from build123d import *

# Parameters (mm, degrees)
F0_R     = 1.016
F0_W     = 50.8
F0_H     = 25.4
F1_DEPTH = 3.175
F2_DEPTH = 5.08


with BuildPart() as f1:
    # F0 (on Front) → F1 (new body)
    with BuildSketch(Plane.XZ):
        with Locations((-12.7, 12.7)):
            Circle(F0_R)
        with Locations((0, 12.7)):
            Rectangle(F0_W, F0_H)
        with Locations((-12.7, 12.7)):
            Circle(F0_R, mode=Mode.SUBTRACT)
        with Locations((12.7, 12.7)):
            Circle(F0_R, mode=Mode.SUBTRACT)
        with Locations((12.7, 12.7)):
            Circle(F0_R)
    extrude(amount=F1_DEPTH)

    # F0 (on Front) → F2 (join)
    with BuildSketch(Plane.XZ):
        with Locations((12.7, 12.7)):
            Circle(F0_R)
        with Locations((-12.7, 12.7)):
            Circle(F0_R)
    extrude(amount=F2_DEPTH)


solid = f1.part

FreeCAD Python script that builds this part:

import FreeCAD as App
import Part
import Sketcher
from FreeCAD import Vector
Q = App.Units.Quantity

doc = App.newDocument("Part")
body = doc.addObject("PartDesign::Body", "Body")

sketch1 = doc.addObject("Sketcher::SketchObject", "Sketch")
body.addObject(sketch1)
sketch1.AttachmentSupport = (doc.XZ_Plane, [""])
sketch1.MapMode = "FlatFace"
sketch1.addGeometry(Part.LineSegment(Vector(-25.4, 25.4, 0), Vector(-25.4, 0, 0)), False)
sketch1.addGeometry(Part.LineSegment(Vector(-25.4, 0, 0), Vector(25.4, 0, 0)), False)
sketch1.addGeometry(Part.LineSegment(Vector(25.4, 0, 0), Vector(25.4, 25.4, 0)), False)
sketch1.addGeometry(Part.LineSegment(Vector(25.4, 25.4, 0), Vector(-25.4, 25.4, 0)), False)
sketch1.addGeometry(Part.Circle(Vector(-12.7, 12.7, 0), Vector(0, 0, 1), 1), False)
sketch1.addConstraint(Sketcher.Constraint("Coincident", 0, 2, 1, 1))
sketch1.addConstraint(Sketcher.Constraint("Coincident", 1, 2, 2, 1))
sketch1.addConstraint(Sketcher.Constraint("Coincident", 2, 2, 3, 1))
sketch1.addConstraint(Sketcher.Constraint("Coincident", 3, 2, 0, 1))
sketch1.addConstraint(Sketcher.Constraint("Vertical", 0))
sketch1.addConstraint(Sketcher.Constraint("Horizontal", 1))
sketch1.addConstraint(Sketcher.Constraint("Vertical", 2))
sketch1.addConstraint(Sketcher.Constraint("Horizontal", 3))
sketch1.addConstraint(Sketcher.Constraint("Symmetric", 0, 2, 1, 2, -1, 1))
sketch1.addConstraint(Sketcher.Constraint("Diameter", 4, Q("0.08 in")))
sketch1.addConstraint(Sketcher.Constraint("DistanceX", 1, 1, 1, 2, Q("2 in")))
sketch1.addConstraint(Sketcher.Constraint("DistanceY", 0, 2, 0, 1, Q("1 in")))
sketch1.addConstraint(Sketcher.Constraint("DistanceX", 4, 3, -1, 1, Q("0.5 in")))
sketch1.addConstraint(Sketcher.Constraint("DistanceY", -1, 1, 4, 3, Q("0.5 in")))
pad1 = doc.addObject("PartDesign::Pad", "Pad")
body.addObject(pad1)
pad1.Profile = sketch1
pad1.Length = Q("0.125 in")

sketch2 = doc.addObject("Sketcher::SketchObject", "Sketch001")
body.addObject(sketch2)
sketch2.AttachmentSupport = (doc.XZ_Plane, [""])
sketch2.MapMode = "FlatFace"
sketch2.addGeometry(Part.Circle(Vector(12.7, 12.7, 0), Vector(0, 0, 1), 1), False)
sketch2.addGeometry(Part.Circle(Vector(-12.7, 12.7, 0), Vector(0, 0, 1), 1), False)
sketch2.addConstraint(Sketcher.Constraint("Equal", 0, 1))
sketch2.addConstraint(Sketcher.Constraint("Symmetric", 0, 3, 1, 3, -2))
sketch2.addConstraint(Sketcher.Constraint("Diameter", 0, Q("0.08 in")))
sketch2.addConstraint(Sketcher.Constraint("DistanceX", 1, 3, 0, 3, Q("1 in")))
sketch2.addConstraint(Sketcher.Constraint("DistanceY", -1, 1, 0, 3, Q("0.5 in")))
pad2 = doc.addObject("PartDesign::Pad", "Pad001")
body.addObject(pad2)
pad2.Profile = sketch2
pad2.Length = Q("0.2 in")

doc.recompute()
